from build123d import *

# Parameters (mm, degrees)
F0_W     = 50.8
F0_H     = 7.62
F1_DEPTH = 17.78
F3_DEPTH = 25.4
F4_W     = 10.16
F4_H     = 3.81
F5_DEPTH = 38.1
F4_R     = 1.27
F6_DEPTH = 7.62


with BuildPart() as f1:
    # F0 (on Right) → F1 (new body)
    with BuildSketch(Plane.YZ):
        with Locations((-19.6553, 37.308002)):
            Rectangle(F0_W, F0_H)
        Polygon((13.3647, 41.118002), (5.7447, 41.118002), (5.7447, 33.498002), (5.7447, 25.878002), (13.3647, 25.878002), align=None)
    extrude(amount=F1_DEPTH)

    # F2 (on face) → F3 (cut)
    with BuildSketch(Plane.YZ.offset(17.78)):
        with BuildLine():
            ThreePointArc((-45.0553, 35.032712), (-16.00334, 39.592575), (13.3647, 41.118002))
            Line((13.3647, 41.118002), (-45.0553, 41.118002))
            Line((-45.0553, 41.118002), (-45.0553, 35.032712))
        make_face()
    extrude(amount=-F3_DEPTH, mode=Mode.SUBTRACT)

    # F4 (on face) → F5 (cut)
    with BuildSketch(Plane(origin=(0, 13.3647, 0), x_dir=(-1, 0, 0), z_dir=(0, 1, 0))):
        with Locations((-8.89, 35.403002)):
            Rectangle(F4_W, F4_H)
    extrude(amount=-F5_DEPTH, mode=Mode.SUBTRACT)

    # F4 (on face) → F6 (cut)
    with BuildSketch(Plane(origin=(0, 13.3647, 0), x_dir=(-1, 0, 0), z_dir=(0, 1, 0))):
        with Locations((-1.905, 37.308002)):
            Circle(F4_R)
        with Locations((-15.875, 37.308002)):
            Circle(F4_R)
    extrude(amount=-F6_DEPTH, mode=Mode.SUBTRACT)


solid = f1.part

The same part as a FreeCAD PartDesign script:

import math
import FreeCAD as App
import Part
import Sketcher
from FreeCAD import Vector
Q = App.Units.Quantity

doc = App.newDocument("Part")
body = doc.addObject("PartDesign::Body", "Body")

sketch1 = body.newObject("Sketcher::SketchObject", "Sketch")
sketch1.AttachmentSupport = (doc.getObject("YZ_Plane"), [""])
sketch1.MapMode = "FlatFace"
sketch1.addGeometry([
    Part.LineSegment(Vector(-45, 41, 0), Vector(-45, 33, 0)),
    Part.LineSegment(Vector(-45, 33, 0), Vector(6, 33, 0)),
    Part.LineSegment(Vector(6, 33, 0), Vector(6, 26, 0)),
    Part.LineSegment(Vector(6, 26, 0), Vector(13, 26, 0)),
    Part.LineSegment(Vector(13, 26, 0), Vector(13, 41, 0)),
    Part.LineSegment(Vector(13, 41, 0), Vector(-45, 41, 0)),
], False)
sketch1.addConstraint([
    Sketcher.Constraint("Coincident", 0, 2, 1, 1),
    Sketcher.Constraint("Coincident", 1, 2, 2, 1),
    Sketcher.Constraint("Coincident", 2, 2, 3, 1),
    Sketcher.Constraint("Coincident", 3, 2, 4, 1),
    Sketcher.Constraint("Coincident", 4, 2, 5, 1),
    Sketcher.Constraint("Coincident", 5, 2, 0, 1),
    Sketcher.Constraint("Vertical", 0),
    Sketcher.Constraint("Horizontal", 1),
    Sketcher.Constraint("Vertical", 2),
    Sketcher.Constraint("Horizontal", 3),
    Sketcher.Constraint("Vertical", 4),
    Sketcher.Constraint("Horizontal", 5),
    Sketcher.Constraint("Equal", 3, 0),
    Sketcher.Constraint("Equal", 0, 2),
    Sketcher.Constraint("DistanceX", 1, 1, 1, 2, Q("2 in")),
    Sketcher.Constraint("DistanceX", 3, 1, 3, 2, Q("0.3 in")),
    Sketcher.Constraint("DistanceX", 0, 2, -1, 1, Q("45.0553 mm")),
    Sketcher.Constraint("DistanceY", -1, 1, 2, 2, Q("25.878002 mm")),
])
pad1 = body.newObject("PartDesign::Pad", "Pad")
pad1.Profile = sketch1
pad1.Length = Q("0.7 in")

sketch2 = body.newObject("Sketcher::SketchObject", "Sketch001")
sketch2.AttachmentSupport = (doc.getObject("YZ_Plane"), [""])
sketch2.MapMode = "FlatFace"
sketch2.AttachmentOffset = App.Placement(Vector(0, 0, 0.7 * 25.4), App.Rotation())
sketch2.addGeometry([
    Part.ArcOfCircle(Part.Circle(Vector(13, -242, 0), Vector(0, 0, 1), 283), math.radians(90), math.radians(101.89)),
    Part.LineSegment(Vector(13, 41, 0), Vector(-45, 41, 0)),
    Part.LineSegment(Vector(-45, 41, 0), Vector(-45, 35, 0)),
], False)
sketch2.addConstraint([
    Sketcher.Constraint("Tangent", 0, 1, 1, 1),
    Sketcher.Constraint("Coincident", 1, 2, 2, 1),
    Sketcher.Constraint("Coincident", 2, 2, 0, 2),
    Sketcher.Constraint("Horizontal", 1),
    Sketcher.Constraint("Vertical", 2),
    Sketcher.Constraint("DistanceX", 1, 2, 1, 1, Q("2.3 in")),
    Sketcher.Constraint("Radius", 0, Q("283.464497 mm")),
    Sketcher.Constraint("DistanceX", -1, 1, 0, 3, Q("13.364702 mm")),
    Sketcher.Constraint("DistanceY", -1, 1, 0, 1, Q("41.118002 mm")),
])
pocket1 = body.newObject("PartDesign::Pocket", "Pocket")
pocket1.Profile = sketch2
pocket1.Length = Q("1 in")

sketch3 = body.newObject("Sketcher::SketchObject", "Sketch002")
sketch3.AttachmentSupport = (doc.getObject("XZ_Plane"), [""])
sketch3.MapMode = "FlatFace"
sketch3.AttachmentOffset = App.Placement(Vector(0, 0, -13.3647), App.Rotation())
sketch3.addGeometry([
    Part.LineSegment(Vector(14, 37.3, 0), Vector(14, 33.5, 0)),
    Part.LineSegment(Vector(14, 33.5, 0), Vector(3.8, 33.5, 0)),
    Part.LineSegment(Vector(3.8, 33.5, 0), Vector(3.8, 37.3, 0)),
    Part.LineSegment(Vector(3.8, 37.3, 0), Vector(14, 37.3, 0)),
], False)
sketch3.addConstraint([
    Sketcher.Constraint("Coincident", 0, 2, 1, 1),
    Sketcher.Constraint("Coincident", 1, 2, 2, 1),
    Sketcher.Constraint("Coincident", 2, 2, 3, 1),
    Sketcher.Constraint("Coincident", 3, 2, 0, 1),
    Sketcher.Constraint("Vertical", 0),
    Sketcher.Constraint("Horizontal", 1),
    Sketcher.Constraint("Vertical", 2),
    Sketcher.Constraint("Horizontal", 3),
    Sketcher.Constraint("DistanceX", 1, 2, 1, 1, Q("0.4 in")),
    Sketcher.Constraint("DistanceY", 0, 2, 0, 1, Q("0.15 in")),
    Sketcher.Constraint("DistanceX", -1, 1, 0, 2, Q("0.55 in")),
    Sketcher.Constraint("DistanceY", -1, 1, 0, 2, Q("33.498002 mm")),
])
pocket2 = body.newObject("PartDesign::Pocket", "Pocket001")
pocket2.Profile = sketch3
pocket2.Length = Q("1.5 in")
pocket2.Reversed = True

sketch4 = body.newObject("Sketcher::SketchObject", "Sketch003")
sketch4.AttachmentSupport = (doc.getObject("XZ_Plane"), [""])
sketch4.MapMode = "FlatFace"
sketch4.AttachmentOffset = App.Placement(Vector(0, 0, -13.3647), App.Rotation())
sketch4.addGeometry([
    Part.Circle(Vector(1.9, 37.3, 0), Vector(0, 0, 1), 1.3),
    Part.Circle(Vector(15.9, 37.3, 0), Vector(0, 0, 1), 1.3),
], False)
sketch4.addConstraint([
    Sketcher.Constraint("Equal", 0, 1),
    Sketcher.Constraint("Horizontal", 0, 3, 1, 3),
    Sketcher.Constraint("Diameter", 0, Q("0.1 in")),
    Sketcher.Constraint("DistanceX", 0, 3, 1, 3, Q("0.55 in")),
    Sketcher.Constraint("DistanceX", -1, 1, 0, 3, Q("0.075 in")),
    Sketcher.Constraint("DistanceY", -1, 1, 0, 3, Q("37.308002 mm")),
])
pocket3 = body.newObject("PartDesign::Pocket", "Pocket002")
pocket3.Profile = sketch4
pocket3.Length = Q("0.3 in")
pocket3.Reversed = True

doc.recompute()
